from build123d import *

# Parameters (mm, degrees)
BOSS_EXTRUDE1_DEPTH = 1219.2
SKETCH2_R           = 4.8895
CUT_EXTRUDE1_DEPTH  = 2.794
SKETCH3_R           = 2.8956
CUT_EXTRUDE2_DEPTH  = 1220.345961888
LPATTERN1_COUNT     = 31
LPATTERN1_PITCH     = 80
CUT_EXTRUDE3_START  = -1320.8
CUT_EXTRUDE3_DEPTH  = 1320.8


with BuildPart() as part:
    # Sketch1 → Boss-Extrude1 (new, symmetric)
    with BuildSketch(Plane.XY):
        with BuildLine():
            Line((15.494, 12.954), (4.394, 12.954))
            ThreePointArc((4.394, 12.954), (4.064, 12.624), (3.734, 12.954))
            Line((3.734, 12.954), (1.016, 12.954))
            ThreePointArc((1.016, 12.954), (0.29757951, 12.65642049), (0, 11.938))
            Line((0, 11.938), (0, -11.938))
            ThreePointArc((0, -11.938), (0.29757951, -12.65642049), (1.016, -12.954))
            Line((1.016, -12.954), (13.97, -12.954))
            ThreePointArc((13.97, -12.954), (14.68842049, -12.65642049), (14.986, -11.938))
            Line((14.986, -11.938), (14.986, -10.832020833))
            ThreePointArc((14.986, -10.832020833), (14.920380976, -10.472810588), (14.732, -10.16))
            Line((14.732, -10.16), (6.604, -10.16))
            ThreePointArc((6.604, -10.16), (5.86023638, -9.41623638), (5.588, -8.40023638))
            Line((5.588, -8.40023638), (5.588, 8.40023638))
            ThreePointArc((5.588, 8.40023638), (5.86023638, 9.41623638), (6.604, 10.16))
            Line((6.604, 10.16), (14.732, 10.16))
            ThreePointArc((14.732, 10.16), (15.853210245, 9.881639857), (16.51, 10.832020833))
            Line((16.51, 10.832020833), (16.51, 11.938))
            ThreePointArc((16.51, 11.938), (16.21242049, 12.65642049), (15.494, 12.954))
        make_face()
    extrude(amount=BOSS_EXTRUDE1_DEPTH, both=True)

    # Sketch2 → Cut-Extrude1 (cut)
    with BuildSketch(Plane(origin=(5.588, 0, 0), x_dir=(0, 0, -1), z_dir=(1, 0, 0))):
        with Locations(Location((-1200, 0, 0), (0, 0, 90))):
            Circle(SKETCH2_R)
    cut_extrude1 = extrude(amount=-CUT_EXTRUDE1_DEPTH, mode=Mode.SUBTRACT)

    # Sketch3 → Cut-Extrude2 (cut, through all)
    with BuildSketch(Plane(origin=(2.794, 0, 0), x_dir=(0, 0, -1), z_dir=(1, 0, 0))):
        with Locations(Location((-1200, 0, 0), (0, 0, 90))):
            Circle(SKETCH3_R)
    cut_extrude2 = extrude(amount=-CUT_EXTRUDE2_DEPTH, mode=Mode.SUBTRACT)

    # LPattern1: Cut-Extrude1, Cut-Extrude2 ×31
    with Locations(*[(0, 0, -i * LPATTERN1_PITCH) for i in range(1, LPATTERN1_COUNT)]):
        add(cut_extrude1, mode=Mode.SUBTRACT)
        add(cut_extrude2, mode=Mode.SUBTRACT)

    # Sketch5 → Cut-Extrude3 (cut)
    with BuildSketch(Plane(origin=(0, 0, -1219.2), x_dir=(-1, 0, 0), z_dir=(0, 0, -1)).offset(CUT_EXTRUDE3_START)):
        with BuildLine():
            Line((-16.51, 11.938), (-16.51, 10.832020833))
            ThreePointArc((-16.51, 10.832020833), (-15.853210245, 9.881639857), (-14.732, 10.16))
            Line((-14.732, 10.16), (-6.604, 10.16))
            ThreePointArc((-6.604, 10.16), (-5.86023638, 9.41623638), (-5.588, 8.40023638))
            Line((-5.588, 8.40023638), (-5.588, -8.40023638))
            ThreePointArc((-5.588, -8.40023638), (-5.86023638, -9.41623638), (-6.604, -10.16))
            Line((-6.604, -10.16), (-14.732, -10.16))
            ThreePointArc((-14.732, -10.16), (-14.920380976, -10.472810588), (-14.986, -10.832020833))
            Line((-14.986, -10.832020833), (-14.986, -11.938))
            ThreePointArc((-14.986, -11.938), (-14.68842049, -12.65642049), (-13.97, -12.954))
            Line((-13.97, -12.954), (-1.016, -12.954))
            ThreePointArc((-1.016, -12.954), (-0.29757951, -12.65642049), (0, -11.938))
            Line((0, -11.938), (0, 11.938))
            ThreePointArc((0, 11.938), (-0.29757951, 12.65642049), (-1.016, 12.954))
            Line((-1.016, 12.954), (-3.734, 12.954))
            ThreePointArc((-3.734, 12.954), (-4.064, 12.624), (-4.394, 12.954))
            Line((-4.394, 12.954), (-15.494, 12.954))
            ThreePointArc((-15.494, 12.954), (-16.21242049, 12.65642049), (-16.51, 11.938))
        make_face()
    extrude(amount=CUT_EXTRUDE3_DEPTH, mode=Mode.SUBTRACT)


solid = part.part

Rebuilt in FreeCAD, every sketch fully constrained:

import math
import FreeCAD as App
import Part
import Sketcher

V = App.Vector
Q = App.Units.Quantity

doc = App.newDocument("Part")
params = doc.addObject("Spreadsheet::Sheet", "Params")
for row, (alias, value) in enumerate([
    ("sketch1_radius", "0.04 in"),
    ("sketch1_radius2", "0.08 in"),
    ("sketch1_width", "0.51 in"),
    ("sketch1_width2", "0.32 in"),
    ("sketch1_height", "0.94 in"),
    ("pad1_length", "96 in"),
    ("sketch2_diameter", "0.385 in"),
    ("pocket1_length", "0.11 in"),
    ("sketch3_diameter", "0.228 in"),
    ("linearpattern_pitch", "80 mm"),
    ("sketch4_radius", "0.04 in"),
    ("sketch4_radius2", "0.08 in"),
    ("sketch4_width", "0.32 in"),
    ("sketch4_width2", "0.51 in"),
    ("sketch4_height", "0.94 in"),
    ("pocket3_length", "52 in"),
], start=1):
    params.set(f"A{row}", alias)
    params.set(f"B{row}", "=" + value)
    params.setAlias(f"B{row}", alias)

body = doc.addObject("PartDesign::Body", "Body")

# Sketch on XY plane
sketch1 = body.newObject("Sketcher::SketchObject", "Sketch")
sketch1.AttachmentSupport = (doc.getObject("XY_Plane"), [""])
sketch1.MapMode = "FlatFace"
sketch1.addGeometry(Part.LineSegment(V(15.49, 12.95, 0), V(4.39, 12.95, 0)), False)
sketch1.addGeometry(Part.ArcOfCircle(Part.Circle(V(4.06, 12.95, 0), V(0, 0, 1), 0.33), math.radians(180), math.radians(360)), False)
sketch1.addGeometry(Part.LineSegment(V(3.73, 12.95, 0), V(1.02, 12.95, 0)), False)
sketch1.addGeometry(Part.ArcOfCircle(Part.Circle(V(1.02, 11.94, 0), V(0, 0, 1), 1.02), math.radians(90), math.radians(180)), False)
sketch1.addGeometry(Part.LineSegment(V(0, 11.94, 0), V(0, -11.94, 0)), False)
sketch1.addGeometry(Part.ArcOfCircle(Part.Circle(V(1.02, -11.94, 0), V(0, 0, 1), 1.02), math.radians(180), math.radians(270)), False)
sketch1.addGeometry(Part.LineSegment(V(1.02, -12.95, 0), V(13.97, -12.95, 0)), False)
sketch1.addGeometry(Part.ArcOfCircle(Part.Circle(V(13.97, -11.94, 0), V(0, 0, 1), 1.02), math.radians(-90), math.radians(0)), False)
sketch1.addGeometry(Part.LineSegment(V(14.99, -11.94, 0), V(14.99, -10.83, 0)), False)
sketch1.addGeometry(Part.ArcOfCircle(Part.Circle(V(13.97, -10.83, 0), V(0, 0, 1), 1.02), math.radians(0), math.radians(41)), False)
sketch1.addGeometry(Part.LineSegment(V(14.73, -10.16, 0), V(6.6, -10.16, 0)), False)
sketch1.addGeometry(Part.ArcOfCircle(Part.Circle(V(7.62, -8.4, 0), V(0, 0, 1), 2.03), math.radians(-180), math.radians(-120)), False)
sketch1.addGeometry(Part.LineSegment(V(5.59, -8.4, 0), V(5.59, 8.4, 0)), False)
sketch1.addGeometry(Part.ArcOfCircle(Part.Circle(V(7.62, 8.4, 0), V(0, 0, 1), 2.03), math.radians(120), math.radians(180)), False)
sketch1.addGeometry(Part.LineSegment(V(6.6, 10.16, 0), V(14.73, 10.16, 0)), False)
sketch1.addGeometry(Part.ArcOfCircle(Part.Circle(V(15.49, 10.83, 0), V(0, 0, 1), 1.02), math.radians(-139), math.radians(0)), False)
sketch1.addGeometry(Part.LineSegment(V(16.51, 10.83, 0), V(16.51, 11.94, 0)), False)
sketch1.addGeometry(Part.ArcOfCircle(Part.Circle(V(15.49, 11.94, 0), V(0, 0, 1), 1.02), math.radians(0), math.radians(90)), False)
sketch1.addConstraint(Sketcher.Constraint("Coincident", 0, 2, 1, 2))
sketch1.addConstraint(Sketcher.Constraint("Coincident", 1, 1, 2, 1))
sketch1.addConstraint(Sketcher.Constraint("Tangent", 2, 2, 3, 1))
sketch1.addConstraint(Sketcher.Constraint("Tangent", 3, 2, 4, 1))
sketch1.addConstraint(Sketcher.Constraint("Tangent", 4, 2, 5, 1))
sketch1.addConstraint(Sketcher.Constraint("Tangent", 5, 2, 6, 1))
sketch1.addConstraint(Sketcher.Constraint("Tangent", 6, 2, 7, 1))
sketch1.addConstraint(Sketcher.Constraint("Tangent", 7, 2, 8, 1))
sketch1.addConstraint(Sketcher.Constraint("Tangent", 8, 2, 9, 1))
sketch1.addConstraint(Sketcher.Constraint("Coincident", 9, 2, 10, 1))
sketch1.addConstraint(Sketcher.Constraint("Coincident", 10, 2, 11, 2))
sketch1.addConstraint(Sketcher.Constraint("Tangent", 11, 1, 12, 1))
sketch1.addConstraint(Sketcher.Constraint("Tangent", 12, 2, 13, 2))
sketch1.addConstraint(Sketcher.Constraint("Coincident", 13, 1, 14, 1))
sketch1.addConstraint(Sketcher.Constraint("Coincident", 14, 2, 15, 1))
sketch1.addConstraint(Sketcher.Constraint("Tangent", 15, 2, 16, 1))
sketch1.addConstraint(Sketcher.Constraint("Tangent", 16, 2, 17, 1))
sketch1.addConstraint(Sketcher.Constraint("Tangent", 17, 2, 0, 1))
sketch1.addConstraint(Sketcher.Constraint("Horizontal", 0))
sketch1.addConstraint(Sketcher.Constraint("Horizontal", 2))
sketch1.addConstraint(Sketcher.Constraint("Vertical", 4))
sketch1.addConstraint(Sketcher.Constraint("Horizontal", 6))
sketch1.addConstraint(Sketcher.Constraint("Vertical", 8))
sketch1.addConstraint(Sketcher.Constraint("Horizontal", 10))
sketch1.addConstraint(Sketcher.Constraint("Vertical", 12))
sketch1.addConstraint(Sketcher.Constraint("Horizontal", 14))
sketch1.addConstraint(Sketcher.Constraint("Vertical", 16))
sketch1.addConstraint(Sketcher.Constraint("Equal", 3, 5))
sketch1.addConstraint(Sketcher.Constraint("Equal", 5, 7))
sketch1.addConstraint(Sketcher.Constraint("Equal", 7, 9))
sketch1.addConstraint(Sketcher.Constraint("Equal", 11, 13))
sketch1.addConstraint(Sketcher.Constraint("Equal", 9, 15))
sketch1.addConstraint(Sketcher.Constraint("Equal", 15, 17))
sketch1.addConstraint(Sketcher.Constraint("Symmetric", 3, 2, 4, 2, -1, 1))
sketch1.addConstraint(Sketcher.Constraint("Symmetric", 10, 2, 13, 1, -1))
sketch1.addConstraint(Sketcher.Constraint("Horizontal", 3, 3, 17, 3))
sketch1.addConstraint(Sketcher.Constraint("Horizontal", 1, 3, 0, 2))
sketch1.addConstraint(Sketcher.Constraint("Vertical", 9, 2, 14, 2))
sketch1.addConstraint(Sketcher.Constraint("Equal", 8, 16))
sketch1.addConstraint(Sketcher.Constraint("Radius", 3, Q("0.04 in")))
sketch1.addConstraint(Sketcher.Constraint("Radius", 11, Q("0.08 in")))
sketch1.addConstraint(Sketcher.Constraint("DistanceX", 6, 1, 6, 2, Q("0.51 in")))
sketch1.addConstraint(Sketcher.Constraint("DistanceX", 10, 2, 10, 1, Q("0.32 in")))
sketch1.addConstraint(Sketcher.Constraint("DistanceY", 4, 2, 4, 1, Q("0.94 in")))
sketch1.addConstraint(Sketcher.Constraint("DistanceX", -1, 1, 11, 3, Q("0.3 in")))
sketch1.addConstraint(Sketcher.Constraint("DistanceY", 9, 2, -1, 1, Q("0.4 in")))
sketch1.addConstraint(Sketcher.Constraint("DistanceX", 1, 3, 13, 1, Q("0.1 in")))
sketch1.addConstraint(Sketcher.Constraint("DistanceX", -1, 1, 1, 3, Q("0.16 in")))
sketch1.addConstraint(Sketcher.Constraint("Radius", 1, 0.33))
sketch1.setExpression("Constraints[39]", "Params.sketch1_radius")
sketch1.setExpression("Constraints[40]", "Params.sketch1_radius2")
sketch1.setExpression("Constraints[41]", "Params.sketch1_width")
sketch1.setExpression("Constraints[42]", "Params.sketch1_width2")
sketch1.setExpression("Constraints[43]", "Params.sketch1_height")
pad1 = body.newObject("PartDesign::Pad", "Pad")
pad1.Profile = sketch1
pad1.setExpression("Length", "Params.pad1_length")
pad1.Midplane = True

# Sketch on YZ plane
sketch2 = body.newObject("Sketcher::SketchObject", "Sketch001")
sketch2.AttachmentSupport = (doc.getObject("YZ_Plane"), [""])
sketch2.MapMode = "FlatFace"
sketch2.AttachmentOffset = App.Placement(V(0, 0, 0.22 * 25.4), App.Rotation())
sketch2.addGeometry(Part.Circle(V(0, 1200, 0), V(0, 0, 1), 4.9), False)
sketch2.addConstraint(Sketcher.Constraint("PointOnObject", 0, 3, -2))
sketch2.addConstraint(Sketcher.Constraint("Diameter", 0, Q("0.385 in")))
sketch2.addConstraint(Sketcher.Constraint("DistanceY", -1, 1, 0, 3, 1200.0))
sketch2.setExpression("Constraints[1]", "Params.sketch2_diameter")
pocket1 = body.newObject("PartDesign::Pocket", "Pocket")
pocket1.Profile = sketch2
pocket1.setExpression("Length", "Params.pocket1_length")

# Sketch on YZ plane
sketch3 = body.newObject("Sketcher::SketchObject", "Sketch002")
sketch3.AttachmentSupport = (doc.getObject("YZ_Plane"), [""])
sketch3.MapMode = "FlatFace"
sketch3.AttachmentOffset = App.Placement(V(0, 0, 0.11 * 25.4), App.Rotation())
sketch3.addGeometry(Part.Circle(V(0, 1200, 0), V(0, 0, 1), 2.9), False)
sketch3.addConstraint(Sketcher.Constraint("PointOnObject", 0, 3, -2))
sketch3.addConstraint(Sketcher.Constraint("Diameter", 0, Q("0.228 in")))
sketch3.addConstraint(Sketcher.Constraint("DistanceY", -1, 1, 0, 3, 1200.0))
sketch3.setExpression("Constraints[1]", "Params.sketch3_diameter")
pocket2 = body.newObject("PartDesign::Pocket", "Pocket001")
pocket2.Profile = sketch3
pocket2.Type = "ThroughAll"
doc.recompute()

linearpattern = body.newObject("PartDesign::LinearPattern", "LinearPattern")
linearpattern.Originals = [pocket1, pocket2]
linearpattern.Direction = (doc.getObject("Z_Axis"), [""])
linearpattern.Mode = "offset"
linearpattern.setExpression("Offset", "Params.linearpattern_pitch")
linearpattern.Occurrences = 31
linearpattern.Reversed = True
body.Tip = linearpattern

# Sketch on XY plane
sketch4 = body.newObject("Sketcher::SketchObject", "Sketch003")
sketch4.AttachmentSupport = (doc.getObject("XY_Plane"), [""])
sketch4.MapMode = "FlatFace"
sketch4.AttachmentOffset = App.Placement(V(0, 0, 4 * 25.4), App.Rotation())
sketch4.addGeometry(Part.LineSegment(V(16.51, 11.94, 0), V(16.51, 10.83, 0)), False)
sketch4.addGeometry(Part.ArcOfCircle(Part.Circle(V(15.49, 10.83, 0), V(0, 0, 1), 1.02), math.radians(-139), math.radians(0)), False)
sketch4.addGeometry(Part.LineSegment(V(14.73, 10.16, 0), V(6.6, 10.16, 0)), False)
sketch4.addGeometry(Part.ArcOfCircle(Part.Circle(V(7.62, 8.4, 0), V(0, 0, 1), 2.03), math.radians(120), math.radians(180)), False)
sketch4.addGeometry(Part.LineSegment(V(5.59, 8.4, 0), V(5.59, -8.4, 0)), False)
sketch4.addGeometry(Part.ArcOfCircle(Part.Circle(V(7.62, -8.4, 0), V(0, 0, 1), 2.03), math.radians(-180), math.radians(-120)), False)
sketch4.addGeometry(Part.LineSegment(V(6.6, -10.16, 0), V(14.73, -10.16, 0)), False)
sketch4.addGeometry(Part.ArcOfCircle(Part.Circle(V(13.97, -10.83, 0), V(0, 0, 1), 1.02), math.radians(0), math.radians(41)), False)
sketch4.addGeometry(Part.LineSegment(V(14.99, -10.83, 0), V(14.99, -11.94, 0)), False)
sketch4.addGeometry(Part.ArcOfCircle(Part.Circle(V(13.97, -11.94, 0), V(0, 0, 1), 1.02), math.radians(-90), math.radians(0)), False)
sketch4.addGeometry(Part.LineSegment(V(13.97, -12.95, 0), V(1.02, -12.95, 0)), False)
sketch4.addGeometry(Part.ArcOfCircle(Part.Circle(V(1.02, -11.94, 0), V(0, 0, 1), 1.02), math.radians(180), math.radians(270)), False)
sketch4.addGeometry(Part.LineSegment(V(0, -11.94, 0), V(0, 11.94, 0)), False)
sketch4.addGeometry(Part.ArcOfCircle(Part.Circle(V(1.02, 11.94, 0), V(0, 0, 1), 1.02), math.radians(90), math.radians(180)), False)
sketch4.addGeometry(Part.LineSegment(V(1.02, 12.95, 0), V(3.73, 12.95, 0)), False)
sketch4.addGeometry(Part.ArcOfCircle(Part.Circle(V(4.06, 12.95, 0), V(0, 0, 1), 0.33), math.radians(180), math.radians(360)), False)
sketch4.addGeometry(Part.LineSegment(V(4.39, 12.95, 0), V(15.49, 12.95, 0)), False)
sketch4.addGeometry(Part.ArcOfCircle(Part.Circle(V(15.49, 11.94, 0), V(0, 0, 1), 1.02), math.radians(0), math.radians(90)), False)
sketch4.addConstraint(Sketcher.Constraint("Tangent", 0, 2, 1, 2))
sketch4.addConstraint(Sketcher.Constraint("Coincident", 1, 1, 2, 1))
sketch4.addConstraint(Sketcher.Constraint("Coincident", 2, 2, 3, 1))
sketch4.addConstraint(Sketcher.Constraint("Tangent", 3, 2, 4, 1))
sketch4.addConstraint(Sketcher.Constraint("Tangent", 4, 2, 5, 1))
sketch4.addConstraint(Sketcher.Constraint("Coincident", 5, 2, 6, 1))
sketch4.addConstraint(Sketcher.Constraint("Coincident", 6, 2, 7, 2))
sketch4.addConstraint(Sketcher.Constraint("Tangent", 7, 1, 8, 1))
sketch4.addConstraint(Sketcher.Constraint("Tangent", 8, 2, 9, 2))
sketch4.addConstraint(Sketcher.Constraint("Tangent", 9, 1, 10, 1))
sketch4.addConstraint(Sketcher.Constraint("Tangent", 10, 2, 11, 2))
sketch4.addConstraint(Sketcher.Constraint("Tangent", 11, 1, 12, 1))
sketch4.addConstraint(Sketcher.Constraint("Tangent", 12, 2, 13, 2))
sketch4.addConstraint(Sketcher.Constraint("Tangent", 13, 1, 14, 1))
sketch4.addConstraint(Sketcher.Constraint("Coincident", 14, 2, 15, 1))
sketch4.addConstraint(Sketcher.Constraint("Coincident", 15, 2, 16, 1))
sketch4.addConstraint(Sketcher.Constraint("Tangent", 16, 2, 17, 2))
sketch4.addConstraint(Sketcher.Constraint("Tangent", 17, 1, 0, 1))
sketch4.addConstraint(Sketcher.Constraint("Vertical", 0))
sketch4.addConstraint(Sketcher.Constraint("Horizontal", 2))
sketch4.addConstraint(Sketcher.Constraint("Vertical", 4))
sketch4.addConstraint(Sketcher.Constraint("Horizontal", 6))
sketch4.addConstraint(Sketcher.Constraint("Vertical", 8))
sketch4.addConstraint(Sketcher.Constraint("Horizontal", 10))
sketch4.addConstraint(Sketcher.Constraint("Vertical", 12))
sketch4.addConstraint(Sketcher.Constraint("Horizontal", 14))
sketch4.addConstraint(Sketcher.Constraint("Horizontal", 16))
sketch4.addConstraint(Sketcher.Constraint("Equal", 3, 5))
sketch4.addConstraint(Sketcher.Constraint("Equal", 1, 7))
sketch4.addConstraint(Sketcher.Constraint("Equal", 7, 9))
sketch4.addConstraint(Sketcher.Constraint("Equal", 9, 11))
sketch4.addConstraint(Sketcher.Constraint("Equal", 11, 13))
sketch4.addConstraint(Sketcher.Constraint("Equal", 13, 17))
sketch4.addConstraint(Sketcher.Constraint("Symmetric", 11, 1, 12, 2, -1, 1))
sketch4.addConstraint(Sketcher.Constraint("Symmetric", 2, 2, 5, 2, -1))
sketch4.addConstraint(Sketcher.Constraint("Horizontal", 13, 3, 17, 3))
sketch4.addConstraint(Sketcher.Constraint("Horizontal", 15, 3, 13, 1))
sketch4.addConstraint(Sketcher.Constraint("Vertical", 1, 1, 6, 2))
sketch4.addConstraint(Sketcher.Constraint("Equal", 0, 8))
sketch4.addConstraint(Sketcher.Constraint("Radius", 1, Q("0.04 in")))
sketch4.addConstraint(Sketcher.Constraint("Radius", 3, Q("0.08 in")))
sketch4.addConstraint(Sketcher.Constraint("DistanceX", 2, 2, 2, 1, Q("0.32 in")))
sketch4.addConstraint(Sketcher.Constraint("DistanceX", 10, 2, 10, 1, Q("0.51 in")))
sketch4.addConstraint(Sketcher.Constraint("DistanceY", 12, 1, 12, 2, Q("0.94 in")))
sketch4.addConstraint(Sketcher.Constraint("DistanceX", -1, 1, 3, 3, Q("0.3 in")))
sketch4.addConstraint(Sketcher.Constraint("DistanceY", -1, 1, 1, 1, Q("0.4 in")))
sketch4.addConstraint(Sketcher.Constraint("DistanceX", 15, 3, 2, 2, Q("0.1 in")))
sketch4.addConstraint(Sketcher.Constraint("DistanceX", -1, 1, 1, 3, Q("0.61 in")))
sketch4.addConstraint(Sketcher.Constraint("Radius", 15, 0.33))
sketch4.setExpression("Constraints[39]", "Params.sketch4_radius")
sketch4.setExpression("Constraints[40]", "Params.sketch4_radius2")
sketch4.setExpression("Constraints[41]", "Params.sketch4_width")
sketch4.setExpression("Constraints[42]", "Params.sketch4_width2")
sketch4.setExpression("Constraints[43]", "Params.sketch4_height")
pocket3 = body.newObject("PartDesign::Pocket", "Pocket002")
pocket3.Profile = sketch4
pocket3.setExpression("Length", "Params.pocket3_length")

doc.recompute()
